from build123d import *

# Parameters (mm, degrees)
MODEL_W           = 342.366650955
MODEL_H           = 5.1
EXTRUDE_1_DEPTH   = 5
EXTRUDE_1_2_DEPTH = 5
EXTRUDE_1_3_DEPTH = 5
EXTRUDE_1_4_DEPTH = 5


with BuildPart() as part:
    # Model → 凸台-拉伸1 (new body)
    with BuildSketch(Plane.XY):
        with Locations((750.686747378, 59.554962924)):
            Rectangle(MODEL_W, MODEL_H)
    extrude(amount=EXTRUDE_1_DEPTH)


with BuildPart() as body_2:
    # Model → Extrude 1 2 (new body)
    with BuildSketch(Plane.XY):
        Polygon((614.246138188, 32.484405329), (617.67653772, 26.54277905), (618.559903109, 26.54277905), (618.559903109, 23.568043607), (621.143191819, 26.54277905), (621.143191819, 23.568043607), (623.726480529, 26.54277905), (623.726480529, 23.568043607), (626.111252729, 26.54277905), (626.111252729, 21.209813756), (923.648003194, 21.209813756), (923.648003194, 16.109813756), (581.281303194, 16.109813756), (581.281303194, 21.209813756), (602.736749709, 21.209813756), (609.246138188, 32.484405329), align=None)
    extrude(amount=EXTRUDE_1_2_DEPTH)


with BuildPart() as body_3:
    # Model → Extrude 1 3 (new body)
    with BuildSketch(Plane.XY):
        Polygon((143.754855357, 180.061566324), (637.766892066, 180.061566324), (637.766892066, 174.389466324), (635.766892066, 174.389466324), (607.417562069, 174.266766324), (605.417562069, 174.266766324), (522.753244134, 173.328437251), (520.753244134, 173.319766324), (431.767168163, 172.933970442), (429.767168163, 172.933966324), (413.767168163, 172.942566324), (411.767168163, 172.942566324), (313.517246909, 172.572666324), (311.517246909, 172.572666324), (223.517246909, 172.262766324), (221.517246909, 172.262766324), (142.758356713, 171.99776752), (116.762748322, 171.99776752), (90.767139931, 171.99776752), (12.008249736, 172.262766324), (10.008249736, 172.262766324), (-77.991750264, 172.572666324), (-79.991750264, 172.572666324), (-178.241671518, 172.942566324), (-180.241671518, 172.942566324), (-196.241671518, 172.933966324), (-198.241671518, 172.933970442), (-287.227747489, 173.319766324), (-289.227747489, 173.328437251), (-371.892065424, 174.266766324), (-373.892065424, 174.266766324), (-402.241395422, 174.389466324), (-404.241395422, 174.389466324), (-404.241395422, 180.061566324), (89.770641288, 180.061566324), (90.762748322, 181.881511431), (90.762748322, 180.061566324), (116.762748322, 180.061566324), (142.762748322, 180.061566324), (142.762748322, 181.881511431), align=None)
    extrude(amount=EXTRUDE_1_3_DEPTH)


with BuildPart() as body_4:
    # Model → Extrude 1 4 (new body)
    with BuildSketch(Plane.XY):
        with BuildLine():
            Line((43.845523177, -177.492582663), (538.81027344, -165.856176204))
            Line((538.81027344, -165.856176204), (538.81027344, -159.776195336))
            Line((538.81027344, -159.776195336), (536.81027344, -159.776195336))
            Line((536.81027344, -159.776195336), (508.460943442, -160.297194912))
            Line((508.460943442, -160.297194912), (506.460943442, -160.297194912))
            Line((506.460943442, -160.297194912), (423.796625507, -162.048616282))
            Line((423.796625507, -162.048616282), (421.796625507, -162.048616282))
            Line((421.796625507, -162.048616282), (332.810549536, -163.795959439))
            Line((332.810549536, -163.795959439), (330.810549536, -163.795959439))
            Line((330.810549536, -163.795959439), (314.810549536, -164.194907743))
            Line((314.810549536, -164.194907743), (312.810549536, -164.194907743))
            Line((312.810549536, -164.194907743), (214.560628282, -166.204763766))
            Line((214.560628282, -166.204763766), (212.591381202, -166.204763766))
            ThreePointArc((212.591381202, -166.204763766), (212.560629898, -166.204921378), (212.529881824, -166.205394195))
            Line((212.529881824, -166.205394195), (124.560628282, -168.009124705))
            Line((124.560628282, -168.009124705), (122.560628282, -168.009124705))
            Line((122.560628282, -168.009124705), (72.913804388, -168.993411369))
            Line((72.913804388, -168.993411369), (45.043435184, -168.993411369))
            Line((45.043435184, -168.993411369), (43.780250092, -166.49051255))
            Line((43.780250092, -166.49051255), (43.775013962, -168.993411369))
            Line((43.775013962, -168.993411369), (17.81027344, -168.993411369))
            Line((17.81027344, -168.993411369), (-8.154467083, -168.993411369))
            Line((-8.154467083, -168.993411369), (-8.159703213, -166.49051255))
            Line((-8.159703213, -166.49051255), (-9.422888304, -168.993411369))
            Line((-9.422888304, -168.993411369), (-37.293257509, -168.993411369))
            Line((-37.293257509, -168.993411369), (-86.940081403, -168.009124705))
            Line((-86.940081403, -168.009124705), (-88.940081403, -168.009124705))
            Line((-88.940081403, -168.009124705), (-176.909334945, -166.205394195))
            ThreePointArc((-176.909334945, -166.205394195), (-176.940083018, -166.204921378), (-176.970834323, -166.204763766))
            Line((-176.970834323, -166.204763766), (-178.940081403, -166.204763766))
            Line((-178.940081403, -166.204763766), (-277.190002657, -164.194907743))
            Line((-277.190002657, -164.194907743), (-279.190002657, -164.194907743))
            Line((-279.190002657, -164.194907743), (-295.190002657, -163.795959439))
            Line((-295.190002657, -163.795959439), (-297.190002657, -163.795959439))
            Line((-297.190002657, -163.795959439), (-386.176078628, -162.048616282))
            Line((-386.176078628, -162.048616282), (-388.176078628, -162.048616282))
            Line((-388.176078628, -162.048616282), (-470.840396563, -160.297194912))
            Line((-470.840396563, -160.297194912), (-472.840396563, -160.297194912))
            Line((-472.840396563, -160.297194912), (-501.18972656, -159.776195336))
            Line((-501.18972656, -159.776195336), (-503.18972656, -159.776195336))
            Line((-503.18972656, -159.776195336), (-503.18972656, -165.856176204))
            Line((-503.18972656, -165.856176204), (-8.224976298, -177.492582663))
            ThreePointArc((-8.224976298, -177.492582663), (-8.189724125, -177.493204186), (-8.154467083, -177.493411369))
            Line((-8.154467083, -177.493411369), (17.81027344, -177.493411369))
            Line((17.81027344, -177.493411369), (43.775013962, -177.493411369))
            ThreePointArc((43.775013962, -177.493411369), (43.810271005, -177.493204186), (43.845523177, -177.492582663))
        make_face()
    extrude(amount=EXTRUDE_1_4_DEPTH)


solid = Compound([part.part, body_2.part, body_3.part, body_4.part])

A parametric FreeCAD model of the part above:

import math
import FreeCAD as App
import Part
import Sketcher

V = App.Vector
Q = App.Units.Quantity

doc = App.newDocument("Part")
params = doc.addObject("Spreadsheet::Sheet", "Params")
for row, (alias, value) in enumerate([
    ("sketch1_height", "5.1 mm"),
    ("pad1_length", "5 mm"),
    ("sketch2_width", "5 mm"),
    ("sketch2_height", "5.1 mm"),
    ("pad2_length", "5 mm"),
    ("sketch3_width", "52 mm"),
    ("sketch3_width2", "2 mm"),
    ("sketch3_length", "2 mm"),
    ("pad3_length", "5 mm"),
    ("sketch4_width", "2 mm"),
    ("pad4_length", "5 mm"),
], start=1):
    params.set(f"A{row}", alias)
    params.set(f"B{row}", "=" + value)
    params.setAlias(f"B{row}", alias)

body = doc.addObject("PartDesign::Body", "Body")

sketch1 = doc.addObject("Sketcher::SketchObject", "Sketch")
body.addObject(sketch1)
sketch1.AttachmentSupport = (doc.XY_Plane, [""])
sketch1.MapMode = "FlatFace"
sketch1.addGeometry(Part.LineSegment(V(579.503422, 62.104963, 0), V(579.503422, 57.004963, 0)), False)
sketch1.addGeometry(Part.LineSegment(V(579.503422, 57.004963, 0), V(921.870073, 57.004963, 0)), False)
sketch1.addGeometry(Part.LineSegment(V(921.870073, 57.004963, 0), V(921.870073, 62.104963, 0)), False)
sketch1.addGeometry(Part.LineSegment(V(921.870073, 62.104963, 0), V(579.503422, 62.104963, 0)), False)
sketch1.addConstraint(Sketcher.Constraint("Coincident", 0, 2, 1, 1))
sketch1.addConstraint(Sketcher.Constraint("Coincident", 1, 2, 2, 1))
sketch1.addConstraint(Sketcher.Constraint("Coincident", 2, 2, 3, 1))
sketch1.addConstraint(Sketcher.Constraint("Coincident", 3, 2, 0, 1))
sketch1.addConstraint(Sketcher.Constraint("Vertical", 0))
sketch1.addConstraint(Sketcher.Constraint("Horizontal", 1))
sketch1.addConstraint(Sketcher.Constraint("Vertical", 2))
sketch1.addConstraint(Sketcher.Constraint("Horizontal", 3))
sketch1.addConstraint(Sketcher.Constraint("DistanceY", 0, 2, 0, 1, 5.1))
sketch1.addConstraint(Sketcher.Constraint("DistanceX", 1, 1, 1, 2, 342.366651))
sketch1.addConstraint(Sketcher.Constraint("DistanceX", -1, 1, 0, 2, 579.503422))
sketch1.addConstraint(Sketcher.Constraint("DistanceY", -1, 1, 0, 2, 57.004963))
sketch1.setExpression("Constraints[8]", "Params.sketch1_height")
pad1 = doc.addObject("PartDesign::Pad", "Pad")
body.addObject(pad1)
pad1.Profile = sketch1
pad1.setExpression("Length", "Params.pad1_length")
body2 = doc.addObject("PartDesign::Body", "Body001")

sketch2 = doc.addObject("Sketcher::SketchObject", "Sketch001")
body2.addObject(sketch2)
sketch2.AttachmentSupport = (doc.getObject("XY_Plane001"), [""])
sketch2.MapMode = "FlatFace"
sketch2.addGeometry(Part.LineSegment(V(617.676538, 26.542779, 0), V(614.246138, 32.484405, 0)), False)
sketch2.addGeometry(Part.LineSegment(V(614.246138, 32.484405, 0), V(609.246138, 32.484405, 0)), False)
sketch2.addGeometry(Part.LineSegment(V(609.246138, 32.484405, 0), V(602.73675, 21.209814, 0)), False)
sketch2.addGeometry(Part.LineSegment(V(602.73675, 21.209814, 0), V(581.281303, 21.209814, 0)), False)
sketch2.addGeometry(Part.LineSegment(V(581.281303, 21.209814, 0), V(581.281303, 16.109814, 0)), False)
sketch2.addGeometry(Part.LineSegment(V(581.281303, 16.109814, 0), V(923.648003, 16.109814, 0)), False)
sketch2.addGeometry(Part.LineSegment(V(923.648003, 16.109814, 0), V(923.648003, 21.209814, 0)), False)
sketch2.addGeometry(Part.LineSegment(V(923.648003, 21.209814, 0), V(626.111253, 21.209814, 0)), False)
sketch2.addGeometry(Part.LineSegment(V(626.111253, 21.209814, 0), V(626.111253, 26.542779, 0)), False)
sketch2.addGeometry(Part.LineSegment(V(626.111253, 26.542779, 0), V(623.726481, 23.568044, 0)), False)
sketch2.addGeometry(Part.LineSegment(V(623.726481, 23.568044, 0), V(623.726481, 26.542779, 0)), False)
sketch2.addGeometry(Part.LineSegment(V(623.726481, 26.542779, 0), V(621.143192, 23.568044, 0)), False)
sketch2.addGeometry(Part.LineSegment(V(621.143192, 23.568044, 0), V(621.143192, 26.542779, 0)), False)
sketch2.addGeometry(Part.LineSegment(V(621.143192, 26.542779, 0), V(618.559903, 23.568044, 0)), False)
sketch2.addGeometry(Part.LineSegment(V(618.559903, 23.568044, 0), V(618.559903, 26.542779, 0)), False)
sketch2.addGeometry(Part.LineSegment(V(618.559903, 26.542779, 0), V(617.676538, 26.542779, 0)), False)
sketch2.addConstraint(Sketcher.Constraint("Coincident", 0, 2, 1, 1))
sketch2.addConstraint(Sketcher.Constraint("Coincident", 1, 2, 2, 1))
sketch2.addConstraint(Sketcher.Constraint("Coincident", 2, 2, 3, 1))
sketch2.addConstraint(Sketcher.Constraint("Coincident", 3, 2, 4, 1))
sketch2.addConstraint(Sketcher.Constraint("Coincident", 4, 2, 5, 1))
sketch2.addConstraint(Sketcher.Constraint("Coincident", 5, 2, 6, 1))
sketch2.addConstraint(Sketcher.Constraint("Coincident", 6, 2, 7, 1))
sketch2.addConstraint(Sketcher.Constraint("Coincident", 7, 2, 8, 1))
sketch2.addConstraint(Sketcher.Constraint("Coincident", 8, 2, 9, 1))
sketch2.addConstraint(Sketcher.Constraint("Coincident", 9, 2, 10, 1))
sketch2.addConstraint(Sketcher.Constraint("Coincident", 10, 2, 11, 1))
sketch2.addConstraint(Sketcher.Constraint("Coincident", 11, 2, 12, 1))
sketch2.addConstraint(Sketcher.Constraint("Coincident", 12, 2, 13, 1))
sketch2.addConstraint(Sketcher.Constraint("Coincident", 13, 2, 14, 1))
sketch2.addConstraint(Sketcher.Constraint("Coincident", 14, 2, 15, 1))
sketch2.addConstraint(Sketcher.Constraint("Coincident", 15, 2, 0, 1))
sketch2.addConstraint(Sketcher.Constraint("Horizontal", 1))
sketch2.addConstraint(Sketcher.Constraint("Horizontal", 3))
sketch2.addConstraint(Sketcher.Constraint("Vertical", 4))
sketch2.addConstraint(Sketcher.Constraint("Horizontal", 5))
sketch2.addConstraint(Sketcher.Constraint("Vertical", 6))
sketch2.addConstraint(Sketcher.Constraint("Horizontal", 7))
sketch2.addConstraint(Sketcher.Constraint("Vertical", 8))
sketch2.addConstraint(Sketcher.Constraint("Vertical", 10))
sketch2.addConstraint(Sketcher.Constraint("Vertical", 12))
sketch2.addConstraint(Sketcher.Constraint("Vertical", 14))
sketch2.addConstraint(Sketcher.Constraint("Horizontal", 15))
sketch2.addConstraint(Sketcher.Constraint("Parallel", 11, 13))
sketch2.addConstraint(Sketcher.Constraint("Horizontal", 3, 2, 6, 2))
sketch2.addConstraint(Sketcher.Constraint("Horizontal", 8, 2, 10, 2))
sketch2.addConstraint(Sketcher.Constraint("Horizontal", 9, 2, 11, 2))
sketch2.addConstraint(Sketcher.Constraint("Horizontal", 10, 2, 12, 2))
sketch2.addConstraint(Sketcher.Constraint("Horizontal", 11, 2, 13, 2))
sketch2.addConstraint(Sketcher.Constraint("Horizontal", 12, 2, 14, 2))
sketch2.addConstraint(Sketcher.Constraint("DistanceX", 1, 2, 1, 1, 5.0))
sketch2.addConstraint(Sketcher.Constraint("Angle", 0, Q("120 deg")))
sketch2.addConstraint(Sketcher.Constraint("Angle", 2, Q("-120 deg")))
sketch2.addConstraint(Sketcher.Constraint("DistanceY", 4, 2, 4, 1, 5.1))
sketch2.addConstraint(Sketcher.Constraint("DistanceX", 5, 1, 5, 2, 342.3667))
sketch2.addConstraint(Sketcher.Constraint("Distance", 0, 6.860799))
sketch2.addConstraint(Sketcher.Constraint("DistanceX", 7, 2, 7, 1, 297.53675))
sketch2.addConstraint(Sketcher.Constraint("Distance", 11, 3.939852))
sketch2.addConstraint(Sketcher.Constraint("DistanceX", 3, 2, 3, 1, 21.455447))
sketch2.addConstraint(Sketcher.Constraint("DistanceX", 15, 2, 15, 1, 0.883365))
sketch2.addConstraint(Sketcher.Constraint("DistanceY", 8, 1, 8, 2, 5.332965))
sketch2.addConstraint(Sketcher.Constraint("DistanceY", 10, 1, 10, 2, 2.974735))
sketch2.addConstraint(Sketcher.Constraint("DistanceX", -1, 1, 0, 2, 614.246138))
sketch2.addConstraint(Sketcher.Constraint("DistanceY", -1, 1, 8, 2, 26.542779))
sketch2.setExpression("Constraints[34]", "Params.sketch2_width")
sketch2.setExpression("Constraints[37]", "Params.sketch2_height")
pad2 = doc.addObject("PartDesign::Pad", "Pad001")
body2.addObject(pad2)
pad2.Profile = sketch2
pad2.setExpression("Length", "Params.pad2_length")
body3 = doc.addObject("PartDesign::Body", "Body002")

sketch3 = doc.addObject("Sketcher::SketchObject", "Sketch002")
body3.addObject(sketch3)
sketch3.AttachmentSupport = (doc.getObject("XY_Plane002"), [""])
sketch3.MapMode = "FlatFace"
sketch3.addGeometry(Part.LineSegment(V(637.766892, 180.061566, 0), V(143.754855, 180.061566, 0)), False)
sketch3.addGeometry(Part.LineSegment(V(143.754855, 180.061566, 0), V(142.762748, 181.881511, 0)), False)
sketch3.addGeometry(Part.LineSegment(V(142.762748, 181.881511, 0), V(142.762748, 180.061566, 0)), False)
sketch3.addGeometry(Part.LineSegment(V(142.762748, 180.061566, 0), V(90.762748, 180.061566, 0)), False)
sketch3.addGeometry(Part.LineSegment(V(90.762748, 180.061566, 0), V(90.762748, 181.881511, 0)), False)
sketch3.addGeometry(Part.LineSegment(V(90.762748, 181.881511, 0), V(89.770641, 180.061566, 0)), False)
sketch3.addGeometry(Part.LineSegment(V(89.770641, 180.061566, 0), V(-404.241395, 180.061566, 0)), False)
sketch3.addGeometry(Part.LineSegment(V(-404.241395, 180.061566, 0), V(-404.241395, 174.389466, 0)), False)
sketch3.addGeometry(Part.LineSegment(V(-404.241395, 174.389466, 0), V(-402.241395, 174.389466, 0)), False)
sketch3.addGeometry(Part.LineSegment(V(-402.241395, 174.389466, 0), V(-373.892065, 174.266766, 0)), False)
sketch3.addGeometry(Part.LineSegment(V(-373.892065, 174.266766, 0), V(-371.892065, 174.266766, 0)), False)
sketch3.addGeometry(Part.LineSegment(V(-371.892065, 174.266766, 0), V(-289.227747, 173.328437, 0)), False)
sketch3.addGeometry(Part.LineSegment(V(-289.227747, 173.328437, 0), V(-287.227747, 173.319766, 0)), False)
sketch3.addGeometry(Part.LineSegment(V(-287.227747, 173.319766, 0), V(-198.241672, 172.93397, 0)), False)
sketch3.addGeometry(Part.LineSegment(V(-198.241672, 172.93397, 0), V(-196.241672, 172.933966, 0)), False)
sketch3.addGeometry(Part.LineSegment(V(-196.241672, 172.933966, 0), V(-180.241672, 172.942566, 0)), False)
sketch3.addGeometry(Part.LineSegment(V(-180.241672, 172.942566, 0), V(-178.241672, 172.942566, 0)), False)
sketch3.addGeometry(Part.LineSegment(V(-178.241672, 172.942566, 0), V(-79.99175, 172.572666, 0)), False)
sketch3.addGeometry(Part.LineSegment(V(-79.99175, 172.572666, 0), V(-77.99175, 172.572666, 0)), False)
sketch3.addGeometry(Part.LineSegment(V(-77.99175, 172.572666, 0), V(10.00825, 172.262766, 0)), False)
sketch3.addGeometry(Part.LineSegment(V(10.00825, 172.262766, 0), V(12.00825, 172.262766, 0)), False)
sketch3.addGeometry(Part.LineSegment(V(12.00825, 172.262766, 0), V(90.76714, 171.997768, 0)), False)
sketch3.addGeometry(Part.LineSegment(V(90.76714, 171.997768, 0), V(142.758357, 171.997768, 0)), False)
sketch3.addGeometry(Part.LineSegment(V(142.758357, 171.997768, 0), V(221.517247, 172.262766, 0)), False)
sketch3.addGeometry(Part.LineSegment(V(221.517247, 172.262766, 0), V(223.517247, 172.262766, 0)), False)
sketch3.addGeometry(Part.LineSegment(V(223.517247, 172.262766, 0), V(311.517247, 172.572666, 0)), False)
sketch3.addGeometry(Part.LineSegment(V(311.517247, 172.572666, 0), V(313.517247, 172.572666, 0)), False)
sketch3.addGeometry(Part.LineSegment(V(313.517247, 172.572666, 0), V(411.767168, 172.942566, 0)), False)
sketch3.addGeometry(Part.LineSegment(V(411.767168, 172.942566, 0), V(413.767168, 172.942566, 0)), False)
sketch3.addGeometry(Part.LineSegment(V(413.767168, 172.942566, 0), V(429.767168, 172.933966, 0)), False)
sketch3.addGeometry(Part.LineSegment(V(429.767168, 172.933966, 0), V(431.767168, 172.93397, 0)), False)
sketch3.addGeometry(Part.LineSegment(V(431.767168, 172.93397, 0), V(520.753244, 173.319766, 0)), False)
sketch3.addGeometry(Part.LineSegment(V(520.753244, 173.319766, 0), V(522.753244, 173.328437, 0)), False)
sketch3.addGeometry(Part.LineSegment(V(522.753244, 173.328437, 0), V(605.417562, 174.266766, 0)), False)
sketch3.addGeometry(Part.LineSegment(V(605.417562, 174.266766, 0), V(607.417562, 174.266766, 0)), False)
sketch3.addGeometry(Part.LineSegment(V(607.417562, 174.266766, 0), V(635.766892, 174.389466, 0)), False)
sketch3.addGeometry(Part.LineSegment(V(635.766892, 174.389466, 0), V(637.766892, 174.389466, 0)), False)
sketch3.addGeometry(Part.LineSegment(V(637.766892, 174.389466, 0), V(637.766892, 180.061566, 0)), False)
sketch3.addConstraint(Sketcher.Constraint("Coincident", 0, 2, 1, 1))
sketch3.addConstraint(Sketcher.Constraint("Coincident", 1, 2, 2, 1))
sketch3.addConstraint(Sketcher.Constraint("Coincident", 2, 2, 3, 1))
sketch3.addConstraint(Sketcher.Constraint("Coincident", 3, 2, 4, 1))
sketch3.addConstraint(Sketcher.Constraint("Coincident", 4, 2, 5, 1))
sketch3.addConstraint(Sketcher.Constraint("Coincident", 5, 2, 6, 1))
sketch3.addConstraint(Sketcher.Constraint("Coincident", 6, 2, 7, 1))
sketch3.addConstraint(Sketcher.Constraint("Coincident", 7, 2, 8, 1))
sketch3.addConstraint(Sketcher.Constraint("Coincident", 8, 2, 9, 1))
sketch3.addConstraint(Sketcher.Constraint("Coincident", 9, 2, 10, 1))
sketch3.addConstraint(Sketcher.Constraint("Coincident", 10, 2, 11, 1))
sketch3.addConstraint(Sketcher.Constraint("Coincident", 11, 2, 12, 1))
sketch3.addConstraint(Sketcher.Constraint("Coincident", 12, 2, 13, 1))
sketch3.addConstraint(Sketcher.Constraint("Coincident", 13, 2, 14, 1))
sketch3.addConstraint(Sketcher.Constraint("Coincident", 14, 2, 15, 1))
sketch3.addConstraint(Sketcher.Constraint("Coincident", 15, 2, 16, 1))
sketch3.addConstraint(Sketcher.Constraint("Coincident", 16, 2, 17, 1))
sketch3.addConstraint(Sketcher.Constraint("Coincident", 17, 2, 18, 1))
sketch3.addConstraint(Sketcher.Constraint("Coincident", 18, 2, 19, 1))
sketch3.addConstraint(Sketcher.Constraint("Coincident", 19, 2, 20, 1))
sketch3.addConstraint(Sketcher.Constraint("Coincident", 20, 2, 21, 1))
sketch3.addConstraint(Sketcher.Constraint("Coincident", 21, 2, 22, 1))
sketch3.addConstraint(Sketcher.Constraint("Coincident", 22, 2, 23, 1))
sketch3.addConstraint(Sketcher.Constraint("Coincident", 23, 2, 24, 1))
sketch3.addConstraint(Sketcher.Constraint("Coincident", 24, 2, 25, 1))
sketch3.addConstraint(Sketcher.Constraint("Coincident", 25, 2, 26, 1))
sketch3.addConstraint(Sketcher.Constraint("Coincident", 26, 2, 27, 1))
sketch3.addConstraint(Sketcher.Constraint("Coincident", 27, 2, 28, 1))
sketch3.addConstraint(Sketcher.Constraint("Coincident", 28, 2, 29, 1))
sketch3.addConstraint(Sketcher.Constraint("Coincident", 29, 2, 30, 1))
sketch3.addConstraint(Sketcher.Constraint("Coincident", 30, 2, 31, 1))
sketch3.addConstraint(Sketcher.Constraint("Coincident", 31, 2, 32, 1))
sketch3.addConstraint(Sketcher.Constraint("Coincident", 32, 2, 33, 1))
sketch3.addConstraint(Sketcher.Constraint("Coincident", 33, 2, 34, 1))
sketch3.addConstraint(Sketcher.Constraint("Coincident", 34, 2, 35, 1))
sketch3.addConstraint(Sketcher.Constraint("Coincident", 35, 2, 36, 1))
sketch3.addConstraint(Sketcher.Constraint("Coincident", 36, 2, 37, 1))
sketch3.addConstraint(Sketcher.Constraint("Coincident", 37, 2, 0, 1))
sketch3.addConstraint(Sketcher.Constraint("Horizontal", 0))
sketch3.addConstraint(Sketcher.Constraint("Vertical", 2))
sketch3.addConstraint(Sketcher.Constraint("Horizontal", 3))
sketch3.addConstraint(Sketcher.Constraint("Vertical", 4))
sketch3.addConstraint(Sketcher.Constraint("Horizontal", 6))
sketch3.addConstraint(Sketcher.Constraint("Vertical", 7))
sketch3.addConstraint(Sketcher.Constraint("Horizontal", 8))
sketch3.addConstraint(Sketcher.Constraint("Horizontal", 10))
sketch3.addConstraint(Sketcher.Constraint("Horizontal", 16))
sketch3.addConstraint(Sketcher.Constraint("Horizontal", 18))
sketch3.addConstraint(Sketcher.Constraint("Horizontal", 20))
sketch3.addConstraint(Sketcher.Constraint("Horizontal", 22))
sketch3.addConstraint(Sketcher.Constraint("Horizontal", 24))
sketch3.addConstraint(Sketcher.Constraint("Horizontal", 26))
sketch3.addConstraint(Sketcher.Constraint("Horizontal", 28))
sketch3.addConstraint(Sketcher.Constraint("Horizontal", 34))
sketch3.addConstraint(Sketcher.Constraint("Horizontal", 36))
sketch3.addConstraint(Sketcher.Constraint("Vertical", 37))
sketch3.addConstraint(Sketcher.Constraint("Parallel", 12, 13))
sketch3.addConstraint(Sketcher.Constraint("Parallel", 31, 32))
sketch3.addConstraint(Sketcher.Constraint("Horizontal", 0, 2, 2, 2))
sketch3.addConstraint(Sketcher.Constraint("Horizontal", 1, 2, 4, 2))
sketch3.addConstraint(Sketcher.Constraint("Horizontal", 3, 2, 5, 2))
sketch3.addConstraint(Sketcher.Constraint("Horizontal", 20, 2, 23, 2))
sketch3.addConstraint(Sketcher.Constraint("Horizontal", 18, 2, 25, 2))
sketch3.addConstraint(Sketcher.Constraint("Horizontal", 16, 2, 27, 2))
sketch3.addConstraint(Sketcher.Constraint("Horizontal", 14, 2, 29, 2))
sketch3.addConstraint(Sketcher.Constraint("Horizontal", 13, 2, 30, 2))
sketch3.addConstraint(Sketcher.Constraint("Horizontal", 12, 2, 31, 2))
sketch3.addConstraint(Sketcher.Constraint("Horizontal", 11, 2, 32, 2))
sketch3.addConstraint(Sketcher.Constraint("Horizontal", 10, 2, 33, 2))
sketch3.addConstraint(Sketcher.Constraint("Horizontal", 8, 2, 35, 2))
sketch3.addConstraint(Sketcher.Constraint("Equal", 0, 6))
sketch3.addConstraint(Sketcher.Constraint("Equal", 8, 10))
sketch3.addConstraint(Sketcher.Constraint("Equal", 10, 16))
sketch3.addConstraint(Sketcher.Constraint("Equal", 16, 18))
sketch3.addConstraint(Sketcher.Constraint("Equal", 18, 20))
sketch3.addConstraint(Sketcher.Constraint("Equal", 20, 24))
sketch3.addConstraint(Sketcher.Constraint("Equal", 24, 26))
sketch3.addConstraint(Sketcher.Constraint("Equal", 26, 28))
sketch3.addConstraint(Sketcher.Constraint("Equal", 28, 34))
sketch3.addConstraint(Sketcher.Constraint("Equal", 34, 36))
sketch3.addConstraint(Sketcher.Constraint("Equal", 1, 5))
sketch3.addConstraint(Sketcher.Constraint("Equal", 21, 23))
sketch3.addConstraint(Sketcher.Constraint("Equal", 19, 25))
sketch3.addConstraint(Sketcher.Constraint("Equal", 17, 27))
sketch3.addConstraint(Sketcher.Constraint("Equal", 15, 29))
sketch3.addConstraint(Sketcher.Constraint("Equal", 14, 30))
sketch3.addConstraint(Sketcher.Constraint("Equal", 13, 31))
sketch3.addConstraint(Sketcher.Constraint("Equal", 11, 33))
sketch3.addConstraint(Sketcher.Constraint("Equal", 9, 35))
sketch3.addConstraint(Sketcher.Constraint("DistanceX", 3, 2, 3, 1, 52.0))
sketch3.addConstraint(Sketcher.Constraint("DistanceX", 8, 1, 8, 2, 2.0))
sketch3.addConstraint(Sketcher.Constraint("Distance", 14, 2.0))
sketch3.addConstraint(Sketcher.Constraint("DistanceX", 11, 2, 12, 2, 2.0))
sketch3.addConstraint(Sketcher.Constraint("DistanceX", 14, 2, 15, 2, 16.0))
sketch3.addConstraint(Sketcher.Constraint("DistanceX", 18, 2, 19, 2, 88.0))
sketch3.addConstraint(Sketcher.Constraint("DistanceY", 7, 2, 7, 1, 5.6721))
sketch3.addConstraint(Sketcher.Constraint("DistanceY", 12, 2, 10, 2, 0.947))
sketch3.addConstraint(Sketcher.Constraint("DistanceY", 22, 2, 23, 2, 0.264999))
sketch3.addConstraint(Sketcher.Constraint("DistanceY", 27, 2, 0, 2, 7.119))
sketch3.addConstraint(Sketcher.Constraint("DistanceY", 9, 2, 8, 2, 0.1227))
sketch3.addConstraint(Sketcher.Constraint("DistanceY", 14, 2, 12, 2, 0.3858))
sketch3.addConstraint(Sketcher.Constraint("DistanceY", 17, 2, 16, 2, 0.3699))
sketch3.addConstraint(Sketcher.Constraint("DistanceY", 19, 2, 5, 2, 7.7988))
sketch3.addConstraint(Sketcher.Constraint("DistanceX", 19, 2, 3, 2, 80.754499))
sketch3.addConstraint(Sketcher.Constraint("DistanceX", 5, 2, 21, 2, 0.996499))
sketch3.addConstraint(Sketcher.Constraint("DistanceX", 0, 2, 0, 1, 494.012037))
sketch3.addConstraint(Sketcher.Constraint("DistanceX", 22, 1, 22, 2, 51.991217))
sketch3.addConstraint(Sketcher.Constraint("DistanceY", 2, 2, 2, 1, 1.819945))
sketch3.addConstraint(Sketcher.Constraint("DistanceX", -1, 1, 1, 2, 142.762748))
sketch3.addConstraint(Sketcher.Constraint("DistanceY", -1, 1, 1, 2, 181.881511))
sketch3.addConstraint(Sketcher.Constraint("DistanceX", 13, 2, -1, 1, 198.241672))
sketch3.addConstraint(Sketcher.Constraint("DistanceY", -1, 1, 13, 2, 172.93397))
sketch3.addConstraint(Sketcher.Constraint("DistanceX", 8, 2, 9, 2, 28.34933))
sketch3.addConstraint(Sketcher.Constraint("Distance", 11, 82.669643))
sketch3.setExpression("Constraints[89]", "Params.sketch3_width")
sketch3.setExpression("Constraints[90]", "Params.sketch3_width2")
sketch3.setExpression("Constraints[91]", "Params.sketch3_length")
pad3 = doc.addObject("PartDesign::Pad", "Pad002")
body3.addObject(pad3)
pad3.Profile = sketch3
pad3.setExpression("Length", "Params.pad3_length")
body4 = doc.addObject("PartDesign::Body", "Body003")

sketch4 = doc.addObject("Sketcher::SketchObject", "Sketch003")
body4.addObject(sketch4)
sketch4.AttachmentSupport = (doc.getObject("XY_Plane003"), [""])
sketch4.MapMode = "FlatFace"
sketch4.addGeometry(Part.LineSegment(V(43.845523, -177.492583, 0), V(538.810273, -165.856176, 0)), False)
sketch4.addGeometry(Part.LineSegment(V(538.810273, -165.856176, 0), V(538.810273, -159.776195, 0)), False)
sketch4.addGeometry(Part.LineSegment(V(538.810273, -159.776195, 0), V(536.810273, -159.776195, 0)), False)
sketch4.addGeometry(Part.LineSegment(V(536.810273, -159.776195, 0), V(508.460943, -160.297195, 0)), False)
sketch4.addGeometry(Part.LineSegment(V(508.460943, -160.297195, 0), V(506.460943, -160.297195, 0)), False)
sketch4.addGeometry(Part.LineSegment(V(506.460943, -160.297195, 0), V(423.796626, -162.048616, 0)), False)
sketch4.addGeometry(Part.LineSegment(V(423.796626, -162.048616, 0), V(421.796626, -162.048616, 0)), False)
sketch4.addGeometry(Part.LineSegment(V(421.796626, -162.048616, 0), V(332.81055, -163.795959, 0)), False)
sketch4.addGeometry(Part.LineSegment(V(332.81055, -163.795959, 0), V(330.81055, -163.795959, 0)), False)
sketch4.addGeometry(Part.LineSegment(V(330.81055, -163.795959, 0), V(314.81055, -164.194908, 0)), False)
sketch4.addGeometry(Part.LineSegment(V(314.81055, -164.194908, 0), V(312.81055, -164.194908, 0)), False)
sketch4.addGeometry(Part.LineSegment(V(312.81055, -164.194908, 0), V(214.560628, -166.204764, 0)), False)
sketch4.addGeometry(Part.LineSegment(V(214.560628, -166.204764, 0), V(212.591381, -166.204764, 0)), False)
sketch4.addGeometry(Part.ArcOfCircle(Part.Circle(V(212.591381, -169.204773, 0), V(0, 0, 1), 3.000009), math.radians(90.000002), math.radians(91.174633)), False)
sketch4.addGeometry(Part.LineSegment(V(212.529882, -166.205394, 0), V(124.560628, -168.009125, 0)), False)
sketch4.addGeometry(Part.LineSegment(V(124.560628, -168.009125, 0), V(122.560628, -168.009125, 0)), False)
sketch4.addGeometry(Part.LineSegment(V(122.560628, -168.009125, 0), V(72.913804, -168.993411, 0)), False)
sketch4.addGeometry(Part.LineSegment(V(72.913804, -168.993411, 0), V(45.043435, -168.993411, 0)), False)
sketch4.addGeometry(Part.LineSegment(V(45.043435, -168.993411, 0), V(43.78025, -166.490513, 0)), False)
sketch4.addGeometry(Part.LineSegment(V(43.78025, -166.490513, 0), V(43.775014, -168.993411, 0)), False)
sketch4.addGeometry(Part.LineSegment(V(43.775014, -168.993411, 0), V(-8.154467, -168.993411, 0)), False)
sketch4.addGeometry(Part.LineSegment(V(-8.154467, -168.993411, 0), V(-8.159703, -166.490513, 0)), False)
sketch4.addGeometry(Part.LineSegment(V(-8.159703, -166.490513, 0), V(-9.422888, -168.993411, 0)), False)
sketch4.addGeometry(Part.LineSegment(V(-9.422888, -168.993411, 0), V(-37.293258, -168.993411, 0)), False)
sketch4.addGeometry(Part.LineSegment(V(-37.293258, -168.993411, 0), V(-86.940081, -168.009125, 0)), False)
sketch4.addGeometry(Part.LineSegment(V(-86.940081, -168.009125, 0), V(-88.940081, -168.009125, 0)), False)
sketch4.addGeometry(Part.LineSegment(V(-88.940081, -168.009125, 0), V(-176.909335, -166.205394, 0)), False)
sketch4.addGeometry(Part.ArcOfCircle(Part.Circle(V(-176.970834, -169.204773, 0), V(0, 0, 1), 3.000009), math.radians(88.825367), math.radians(89.999998)), False)
sketch4.addGeometry(Part.LineSegment(V(-176.970834, -166.204764, 0), V(-178.940081, -166.204764, 0)), False)
sketch4.addGeometry(Part.LineSegment(V(-178.940081, -166.204764, 0), V(-277.190003, -164.194908, 0)), False)
sketch4.addGeometry(Part.LineSegment(V(-277.190003, -164.194908, 0), V(-279.190003, -164.194908, 0)), False)
sketch4.addGeometry(Part.LineSegment(V(-279.190003, -164.194908, 0), V(-295.190003, -163.795959, 0)), False)
sketch4.addGeometry(Part.LineSegment(V(-295.190003, -163.795959, 0), V(-297.190003, -163.795959, 0)), False)
sketch4.addGeometry(Part.LineSegment(V(-297.190003, -163.795959, 0), V(-386.176079, -162.048616, 0)), False)
sketch4.addGeometry(Part.LineSegment(V(-386.176079, -162.048616, 0), V(-388.176079, -162.048616, 0)), False)
sketch4.addGeometry(Part.LineSegment(V(-388.176079, -162.048616, 0), V(-470.840397, -160.297195, 0)), False)
sketch4.addGeometry(Part.LineSegment(V(-470.840397, -160.297195, 0), V(-472.840397, -160.297195, 0)), False)
sketch4.addGeometry(Part.LineSegment(V(-472.840397, -160.297195, 0), V(-501.189727, -159.776195, 0)), False)
sketch4.addGeometry(Part.LineSegment(V(-501.189727, -159.776195, 0), V(-503.189727, -159.776195, 0)), False)
sketch4.addGeometry(Part.LineSegment(V(-503.189727, -159.776195, 0), V(-503.189727, -165.856176, 0)), False)
sketch4.addGeometry(Part.LineSegment(V(-503.189727, -165.856176, 0), V(-8.224976, -177.492583, 0)), False)
sketch4.addGeometry(Part.ArcOfCircle(Part.Circle(V(-8.154467, -174.493421, 0), V(0, 0, 1), 2.999991), math.radians(-91.346753), math.radians(-89.999998)), False)
sketch4.addGeometry(Part.LineSegment(V(-8.154467, -177.493411, 0), V(43.775014, -177.493411, 0)), False)
sketch4.addGeometry(Part.ArcOfCircle(Part.Circle(V(43.775014, -174.493421, 0), V(0, 0, 1), 2.999991), math.radians(-90.000002), math.radians(-88.653247)), False)
sketch4.addConstraint(Sketcher.Constraint("Coincident", 0, 2, 1, 1))
sketch4.addConstraint(Sketcher.Constraint("Coincident", 1, 2, 2, 1))
sketch4.addConstraint(Sketcher.Constraint("Coincident", 2, 2, 3, 1))
sketch4.addConstraint(Sketcher.Constraint("Coincident", 3, 2, 4, 1))
sketch4.addConstraint(Sketcher.Constraint("Coincident", 4, 2, 5, 1))
sketch4.addConstraint(Sketcher.Constraint("Coincident", 5, 2, 6, 1))
sketch4.addConstraint(Sketcher.Constraint("Coincident", 6, 2, 7, 1))
sketch4.addConstraint(Sketcher.Constraint("Coincident", 7, 2, 8, 1))
sketch4.addConstraint(Sketcher.Constraint("Coincident", 8, 2, 9, 1))
sketch4.addConstraint(Sketcher.Constraint("Coincident", 9, 2, 10, 1))
sketch4.addConstraint(Sketcher.Constraint("Coincident", 10, 2, 11, 1))
sketch4.addConstraint(Sketcher.Constraint("Coincident", 11, 2, 12, 1))
sketch4.addConstraint(Sketcher.Constraint("Tangent", 12, 2, 13, 1))
sketch4.addConstraint(Sketcher.Constraint("Tangent", 13, 2, 14, 1))
sketch4.addConstraint(Sketcher.Constraint("Coincident", 14, 2, 15, 1))
sketch4.addConstraint(Sketcher.Constraint("Coincident", 15, 2, 16, 1))
sketch4.addConstraint(Sketcher.Constraint("Coincident", 16, 2, 17, 1))
sketch4.addConstraint(Sketcher.Constraint("Coincident", 17, 2, 18, 1))
sketch4.addConstraint(Sketcher.Constraint("Coincident", 18, 2, 19, 1))
sketch4.addConstraint(Sketcher.Constraint("Coincident", 19, 2, 20, 1))
sketch4.addConstraint(Sketcher.Constraint("Coincident", 20, 2, 21, 1))
sketch4.addConstraint(Sketcher.Constraint("Coincident", 21, 2, 22, 1))
sketch4.addConstraint(Sketcher.Constraint("Coincident", 22, 2, 23, 1))
sketch4.addConstraint(Sketcher.Constraint("Coincident", 23, 2, 24, 1))
sketch4.addConstraint(Sketcher.Constraint("Coincident", 24, 2, 25, 1))
sketch4.addConstraint(Sketcher.Constraint("Coincident", 25, 2, 26, 1))
sketch4.addConstraint(Sketcher.Constraint("Tangent", 26, 2, 27, 1))
sketch4.addConstraint(Sketcher.Constraint("Tangent", 27, 2, 28, 1))
sketch4.addConstraint(Sketcher.Constraint("Coincident", 28, 2, 29, 1))
sketch4.addConstraint(Sketcher.Constraint("Coincident", 29, 2, 30, 1))
sketch4.addConstraint(Sketcher.Constraint("Coincident", 30, 2, 31, 1))
sketch4.addConstraint(Sketcher.Constraint("Coincident", 31, 2, 32, 1))
sketch4.addConstraint(Sketcher.Constraint("Coincident", 32, 2, 33, 1))
sketch4.addConstraint(Sketcher.Constraint("Coincident", 33, 2, 34, 1))
sketch4.addConstraint(Sketcher.Constraint("Coincident", 34, 2, 35, 1))
sketch4.addConstraint(Sketcher.Constraint("Coincident", 35, 2, 36, 1))
sketch4.addConstraint(Sketcher.Constraint("Coincident", 36, 2, 37, 1))
sketch4.addConstraint(Sketcher.Constraint("Coincident", 37, 2, 38, 1))
sketch4.addConstraint(Sketcher.Constraint("Coincident", 38, 2, 39, 1))
sketch4.addConstraint(Sketcher.Constraint("Coincident", 39, 2, 40, 1))
sketch4.addConstraint(Sketcher.Constraint("Tangent", 40, 2, 41, 1))
sketch4.addConstraint(Sketcher.Constraint("Tangent", 41, 2, 42, 1))
sketch4.addConstraint(Sketcher.Constraint("Tangent", 42, 2, 43, 1))
sketch4.addConstraint(Sketcher.Constraint("Tangent", 43, 2, 0, 1))
sketch4.addConstraint(Sketcher.Constraint("Vertical", 1))
sketch4.addConstraint(Sketcher.Constraint("Horizontal", 2))
sketch4.addConstraint(Sketcher.Constraint("Horizontal", 4))
sketch4.addConstraint(Sketcher.Constraint("Horizontal", 6))
sketch4.addConstraint(Sketcher.Constraint("Horizontal", 8))
sketch4.addConstraint(Sketcher.Constraint("Horizontal", 10))
sketch4.addConstraint(Sketcher.Constraint("Horizontal", 12))
sketch4.addConstraint(Sketcher.Constraint("Horizontal", 15))
sketch4.addConstraint(Sketcher.Constraint("Horizontal", 17))
sketch4.addConstraint(Sketcher.Constraint("Horizontal", 20))
sketch4.addConstraint(Sketcher.Constraint("Horizontal", 23))
sketch4.addConstraint(Sketcher.Constraint("Horizontal", 25))
sketch4.addConstraint(Sketcher.Constraint("Horizontal", 28))
sketch4.addConstraint(Sketcher.Constraint("Horizontal", 30))
sketch4.addConstraint(Sketcher.Constraint("Horizontal", 32))
sketch4.addConstraint(Sketcher.Constraint("Horizontal", 34))
sketch4.addConstraint(Sketcher.Constraint("Horizontal", 36))
sketch4.addConstraint(Sketcher.Constraint("Horizontal", 38))
sketch4.addConstraint(Sketcher.Constraint("Vertical", 39))
sketch4.addConstraint(Sketcher.Constraint("Horizontal", 42))
sketch4.addConstraint(Sketcher.Constraint("Equal", 13, 27))
sketch4.addConstraint(Sketcher.Constraint("Equal", 41, 43))
sketch4.addConstraint(Sketcher.Constraint("Horizontal", 13, 3, 27, 3))
sketch4.addConstraint(Sketcher.Constraint("Horizontal", 17, 2, 19, 2))
sketch4.addConstraint(Sketcher.Constraint("Horizontal", 18, 2, 21, 2))
sketch4.addConstraint(Sketcher.Constraint("Horizontal", 20, 2, 22, 2))
sketch4.addConstraint(Sketcher.Constraint("Horizontal", 15, 2, 24, 2))
sketch4.addConstraint(Sketcher.Constraint("Horizontal", 10, 2, 29, 2))
sketch4.addConstraint(Sketcher.Constraint("Horizontal", 8, 2, 31, 2))
sketch4.addConstraint(Sketcher.Constraint("Horizontal", 6, 2, 33, 2))
sketch4.addConstraint(Sketcher.Constraint("Horizontal", 4, 2, 35, 2))
sketch4.addConstraint(Sketcher.Constraint("Horizontal", 2, 2, 37, 2))
sketch4.addConstraint(Sketcher.Constraint("Horizontal", 0, 2, 39, 2))
sketch4.addConstraint(Sketcher.Constraint("Vertical", 43, 3, 19, 2))
sketch4.addConstraint(Sketcher.Constraint("Vertical", 41, 3, 20, 2))
sketch4.addConstraint(Sketcher.Constraint("Equal", 2, 4))
sketch4.addConstraint(Sketcher.Constraint("Equal", 4, 6))
sketch4.addConstraint(Sketcher.Constraint("Equal", 6, 8))
sketch4.addConstraint(Sketcher.Constraint("Equal", 8, 10))
sketch4.addConstraint(Sketcher.Constraint("Equal", 10, 15))
sketch4.addConstraint(Sketcher.Constraint("Equal", 17, 23))
sketch4.addConstraint(Sketcher.Constraint("Equal", 15, 25))
sketch4.addConstraint(Sketcher.Constraint("Equal", 12, 28))
sketch4.addConstraint(Sketcher.Constraint("Equal", 25, 30))
sketch4.addConstraint(Sketcher.Constraint("Equal", 30, 32))
sketch4.addConstraint(Sketcher.Constraint("Equal", 32, 34))
sketch4.addConstraint(Sketcher.Constraint("Equal", 34, 36))
sketch4.addConstraint(Sketcher.Constraint("Equal", 36, 38))
sketch4.addConstraint(Sketcher.Constraint("Equal", 18, 22))
sketch4.addConstraint(Sketcher.Constraint("Equal", 16, 24))
sketch4.addConstraint(Sketcher.Constraint("Equal", 14, 26))
sketch4.addConstraint(Sketcher.Constraint("Equal", 11, 29))
sketch4.addConstraint(Sketcher.Constraint("Equal", 9, 31))
sketch4.addConstraint(Sketcher.Constraint("Equal", 7, 33))
sketch4.addConstraint(Sketcher.Constraint("Equal", 5, 35))
sketch4.addConstraint(Sketcher.Constraint("Equal", 3, 37))
sketch4.addConstraint(Sketcher.Constraint("Equal", 0, 40))
sketch4.addConstraint(Sketcher.Constraint("DistanceX", 2, 2, 2, 1, 2.0))
sketch4.addConstraint(Sketcher.Constraint("DistanceX", 9, 2, 8, 2, 16.0))
sketch4.addConstraint(Sketcher.Constraint("DistanceX", 14, 2, 11, 2, 90.0))
sketch4.addConstraint(Sketcher.Constraint("DistanceY", 41, 2, 20, 2, 8.5))
sketch4.addConstraint(Sketcher.Constraint("Radius", 13, 3.000009))
sketch4.addConstraint(Sketcher.Constraint("Radius", 41, 2.999991))
sketch4.addConstraint(Sketcher.Constraint("DistanceY", 3, 2, 2, 2, 0.521))
sketch4.addConstraint(Sketcher.Constraint("DistanceX", 17, 2, 17, 1, 27.870369))
sketch4.addConstraint(Sketcher.Constraint("DistanceX", 20, 2, 20, 1, 51.929481))
sketch4.addConstraint(Sketcher.Constraint("DistanceY", 1, 1, 1, 2, 6.079981))
sketch4.addConstraint(Sketcher.Constraint("DistanceX", 13, 2, 12, 2, 0.061499))
sketch4.addConstraint(Sketcher.Constraint("DistanceY", 17, 2, 18, 2, 2.502899))
sketch4.addConstraint(Sketcher.Constraint("Distance", 5, 82.68287))
sketch4.addConstraint(Sketcher.Constraint("Distance", 7, 89.00323))
sketch4.addConstraint(Sketcher.Constraint("Distance", 16, 49.65658))
sketch4.addConstraint(Sketcher.Constraint("DistanceX", 12, 2, 12, 1, 1.969247))
sketch4.addConstraint(Sketcher.Constraint("DistanceX", -1, 1, 13, 3, 212.591381))
sketch4.addConstraint(Sketcher.Constraint("DistanceY", 41, 3, -1, 1, 174.493421))
sketch4.addConstraint(Sketcher.Constraint("DistanceX", -1, 1, 7, 2, 332.81055))
sketch4.addConstraint(Sketcher.Constraint("DistanceY", 7, 2, -1, 1, 163.795959))
sketch4.addConstraint(Sketcher.Constraint("DistanceX", -1, 1, 18, 2, 43.78025))
sketch4.addConstraint(Sketcher.Constraint("DistanceX", 22, 2, -1, 1, 9.422888))
sketch4.addConstraint(Sketcher.Constraint("DistanceX", 24, 2, -1, 1, 86.940081))
sketch4.addConstraint(Sketcher.Constraint("DistanceX", 33, 2, -1, 1, 386.176079))
sketch4.addConstraint(Sketcher.Constraint("DistanceX", 43, 3, 0, 2, 495.035259))
sketch4.addConstraint(Sketcher.Constraint("DistanceX", 3, 2, 2, 2, 28.34933))
sketch4.addConstraint(Sketcher.Constraint("DistanceY", 9, 2, 8, 2, 0.398948))
sketch4.setExpression("Constraints[101]", "Params.sketch4_width")
pad4 = doc.addObject("PartDesign::Pad", "Pad003")
body4.addObject(pad4)
pad4.Profile = sketch4
pad4.setExpression("Length", "Params.pad4_length")

doc.recompute()
